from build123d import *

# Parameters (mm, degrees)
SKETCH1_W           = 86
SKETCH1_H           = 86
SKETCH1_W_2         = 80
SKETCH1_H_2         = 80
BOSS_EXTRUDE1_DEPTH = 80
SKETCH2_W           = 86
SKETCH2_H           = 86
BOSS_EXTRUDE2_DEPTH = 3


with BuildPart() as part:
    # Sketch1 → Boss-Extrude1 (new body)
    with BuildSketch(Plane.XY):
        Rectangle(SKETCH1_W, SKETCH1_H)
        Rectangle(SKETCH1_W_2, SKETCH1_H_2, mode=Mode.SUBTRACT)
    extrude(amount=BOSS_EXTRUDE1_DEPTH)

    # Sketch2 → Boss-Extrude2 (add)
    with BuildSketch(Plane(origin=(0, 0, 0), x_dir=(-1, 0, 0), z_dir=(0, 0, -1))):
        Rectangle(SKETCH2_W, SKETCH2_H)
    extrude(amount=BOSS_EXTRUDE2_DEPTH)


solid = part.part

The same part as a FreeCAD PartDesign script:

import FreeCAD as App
import Part
import Sketcher


def add_polygon(sketch, points):
    """Adds a closed chain of lines whose ends are joined by coincident constraints."""
    first, n = sketch.GeometryCount, len(points)
    for a, b in zip(points, points[1:] + points[:1]):
        sketch.addGeometry(Part.LineSegment(App.Vector(*a, 0), App.Vector(*b, 0)), False)
    for i in range(n):
        sketch.addConstraint(Sketcher.Constraint("Coincident", first + i, 2, first + (i + 1) % n, 1))

doc = App.newDocument("Part")
body = doc.addObject("PartDesign::Body", "Body")

# Sketch on XY plane
sketch1 = body.newObject("Sketcher::SketchObject", "Sketch")
sketch1.AttachmentSupport = (doc.getObject("XY_Plane"), [""])
sketch1.MapMode = "FlatFace"
add_polygon(sketch1, [(-43, 43), (-43, -43), (43, -43), (43, 43)])  # lines 0-3
add_polygon(sketch1, [(40, -40), (-40, -40), (-40, 40), (40, 40)])  # lines 4-7
sketch1.addConstraint([
    Sketcher.Constraint("Vertical", 0),
    Sketcher.Constraint("Horizontal", 1),
    Sketcher.Constraint("Vertical", 2),
    Sketcher.Constraint("Horizontal", 3),
    Sketcher.Constraint("Horizontal", 4),
    Sketcher.Constraint("Vertical", 5),
    Sketcher.Constraint("Horizontal", 6),
    Sketcher.Constraint("Vertical", 7),
    Sketcher.Constraint("Symmetric", 0, 2, 2, 2, -1, 1),
    Sketcher.Constraint("Symmetric", 4, 2, 6, 2, -1, 1),
    Sketcher.Constraint("Equal", 3, 0),
    Sketcher.Constraint("Equal", 6, 5),
    Sketcher.Constraint("DistanceX", 1, 1, 1, 2, 86.0),
    Sketcher.Constraint("DistanceX", 4, 2, 4, 1, 80.0),
])
pad1 = body.newObject("PartDesign::Pad", "Pad")
pad1.Profile = sketch1
pad1.Length = 80

# Sketch on XY plane
sketch2 = body.newObject("Sketcher::SketchObject", "Sketch001")
sketch2.AttachmentSupport = (doc.getObject("XY_Plane"), [""])
sketch2.MapMode = "FlatFace"
add_polygon(sketch2, [(43, 43), (43, -43), (-43, -43), (-43, 43)])  # lines 0-3
sketch2.addConstraint([
    Sketcher.Constraint("Vertical", 0),
    Sketcher.Constraint("Horizontal", 1),
    Sketcher.Constraint("Vertical", 2),
    Sketcher.Constraint("Horizontal", 3),
    Sketcher.Constraint("Symmetric", 0, 2, 2, 2, -1, 1),
    Sketcher.Constraint("Equal", 3, 0),
    Sketcher.Constraint("DistanceX", 1, 2, 1, 1, 86.0),
])
pad2 = body.newObject("PartDesign::Pad", "Pad001")
pad2.Profile = sketch2
pad2.Length = 3
pad2.Reversed = True

doc.recompute()
